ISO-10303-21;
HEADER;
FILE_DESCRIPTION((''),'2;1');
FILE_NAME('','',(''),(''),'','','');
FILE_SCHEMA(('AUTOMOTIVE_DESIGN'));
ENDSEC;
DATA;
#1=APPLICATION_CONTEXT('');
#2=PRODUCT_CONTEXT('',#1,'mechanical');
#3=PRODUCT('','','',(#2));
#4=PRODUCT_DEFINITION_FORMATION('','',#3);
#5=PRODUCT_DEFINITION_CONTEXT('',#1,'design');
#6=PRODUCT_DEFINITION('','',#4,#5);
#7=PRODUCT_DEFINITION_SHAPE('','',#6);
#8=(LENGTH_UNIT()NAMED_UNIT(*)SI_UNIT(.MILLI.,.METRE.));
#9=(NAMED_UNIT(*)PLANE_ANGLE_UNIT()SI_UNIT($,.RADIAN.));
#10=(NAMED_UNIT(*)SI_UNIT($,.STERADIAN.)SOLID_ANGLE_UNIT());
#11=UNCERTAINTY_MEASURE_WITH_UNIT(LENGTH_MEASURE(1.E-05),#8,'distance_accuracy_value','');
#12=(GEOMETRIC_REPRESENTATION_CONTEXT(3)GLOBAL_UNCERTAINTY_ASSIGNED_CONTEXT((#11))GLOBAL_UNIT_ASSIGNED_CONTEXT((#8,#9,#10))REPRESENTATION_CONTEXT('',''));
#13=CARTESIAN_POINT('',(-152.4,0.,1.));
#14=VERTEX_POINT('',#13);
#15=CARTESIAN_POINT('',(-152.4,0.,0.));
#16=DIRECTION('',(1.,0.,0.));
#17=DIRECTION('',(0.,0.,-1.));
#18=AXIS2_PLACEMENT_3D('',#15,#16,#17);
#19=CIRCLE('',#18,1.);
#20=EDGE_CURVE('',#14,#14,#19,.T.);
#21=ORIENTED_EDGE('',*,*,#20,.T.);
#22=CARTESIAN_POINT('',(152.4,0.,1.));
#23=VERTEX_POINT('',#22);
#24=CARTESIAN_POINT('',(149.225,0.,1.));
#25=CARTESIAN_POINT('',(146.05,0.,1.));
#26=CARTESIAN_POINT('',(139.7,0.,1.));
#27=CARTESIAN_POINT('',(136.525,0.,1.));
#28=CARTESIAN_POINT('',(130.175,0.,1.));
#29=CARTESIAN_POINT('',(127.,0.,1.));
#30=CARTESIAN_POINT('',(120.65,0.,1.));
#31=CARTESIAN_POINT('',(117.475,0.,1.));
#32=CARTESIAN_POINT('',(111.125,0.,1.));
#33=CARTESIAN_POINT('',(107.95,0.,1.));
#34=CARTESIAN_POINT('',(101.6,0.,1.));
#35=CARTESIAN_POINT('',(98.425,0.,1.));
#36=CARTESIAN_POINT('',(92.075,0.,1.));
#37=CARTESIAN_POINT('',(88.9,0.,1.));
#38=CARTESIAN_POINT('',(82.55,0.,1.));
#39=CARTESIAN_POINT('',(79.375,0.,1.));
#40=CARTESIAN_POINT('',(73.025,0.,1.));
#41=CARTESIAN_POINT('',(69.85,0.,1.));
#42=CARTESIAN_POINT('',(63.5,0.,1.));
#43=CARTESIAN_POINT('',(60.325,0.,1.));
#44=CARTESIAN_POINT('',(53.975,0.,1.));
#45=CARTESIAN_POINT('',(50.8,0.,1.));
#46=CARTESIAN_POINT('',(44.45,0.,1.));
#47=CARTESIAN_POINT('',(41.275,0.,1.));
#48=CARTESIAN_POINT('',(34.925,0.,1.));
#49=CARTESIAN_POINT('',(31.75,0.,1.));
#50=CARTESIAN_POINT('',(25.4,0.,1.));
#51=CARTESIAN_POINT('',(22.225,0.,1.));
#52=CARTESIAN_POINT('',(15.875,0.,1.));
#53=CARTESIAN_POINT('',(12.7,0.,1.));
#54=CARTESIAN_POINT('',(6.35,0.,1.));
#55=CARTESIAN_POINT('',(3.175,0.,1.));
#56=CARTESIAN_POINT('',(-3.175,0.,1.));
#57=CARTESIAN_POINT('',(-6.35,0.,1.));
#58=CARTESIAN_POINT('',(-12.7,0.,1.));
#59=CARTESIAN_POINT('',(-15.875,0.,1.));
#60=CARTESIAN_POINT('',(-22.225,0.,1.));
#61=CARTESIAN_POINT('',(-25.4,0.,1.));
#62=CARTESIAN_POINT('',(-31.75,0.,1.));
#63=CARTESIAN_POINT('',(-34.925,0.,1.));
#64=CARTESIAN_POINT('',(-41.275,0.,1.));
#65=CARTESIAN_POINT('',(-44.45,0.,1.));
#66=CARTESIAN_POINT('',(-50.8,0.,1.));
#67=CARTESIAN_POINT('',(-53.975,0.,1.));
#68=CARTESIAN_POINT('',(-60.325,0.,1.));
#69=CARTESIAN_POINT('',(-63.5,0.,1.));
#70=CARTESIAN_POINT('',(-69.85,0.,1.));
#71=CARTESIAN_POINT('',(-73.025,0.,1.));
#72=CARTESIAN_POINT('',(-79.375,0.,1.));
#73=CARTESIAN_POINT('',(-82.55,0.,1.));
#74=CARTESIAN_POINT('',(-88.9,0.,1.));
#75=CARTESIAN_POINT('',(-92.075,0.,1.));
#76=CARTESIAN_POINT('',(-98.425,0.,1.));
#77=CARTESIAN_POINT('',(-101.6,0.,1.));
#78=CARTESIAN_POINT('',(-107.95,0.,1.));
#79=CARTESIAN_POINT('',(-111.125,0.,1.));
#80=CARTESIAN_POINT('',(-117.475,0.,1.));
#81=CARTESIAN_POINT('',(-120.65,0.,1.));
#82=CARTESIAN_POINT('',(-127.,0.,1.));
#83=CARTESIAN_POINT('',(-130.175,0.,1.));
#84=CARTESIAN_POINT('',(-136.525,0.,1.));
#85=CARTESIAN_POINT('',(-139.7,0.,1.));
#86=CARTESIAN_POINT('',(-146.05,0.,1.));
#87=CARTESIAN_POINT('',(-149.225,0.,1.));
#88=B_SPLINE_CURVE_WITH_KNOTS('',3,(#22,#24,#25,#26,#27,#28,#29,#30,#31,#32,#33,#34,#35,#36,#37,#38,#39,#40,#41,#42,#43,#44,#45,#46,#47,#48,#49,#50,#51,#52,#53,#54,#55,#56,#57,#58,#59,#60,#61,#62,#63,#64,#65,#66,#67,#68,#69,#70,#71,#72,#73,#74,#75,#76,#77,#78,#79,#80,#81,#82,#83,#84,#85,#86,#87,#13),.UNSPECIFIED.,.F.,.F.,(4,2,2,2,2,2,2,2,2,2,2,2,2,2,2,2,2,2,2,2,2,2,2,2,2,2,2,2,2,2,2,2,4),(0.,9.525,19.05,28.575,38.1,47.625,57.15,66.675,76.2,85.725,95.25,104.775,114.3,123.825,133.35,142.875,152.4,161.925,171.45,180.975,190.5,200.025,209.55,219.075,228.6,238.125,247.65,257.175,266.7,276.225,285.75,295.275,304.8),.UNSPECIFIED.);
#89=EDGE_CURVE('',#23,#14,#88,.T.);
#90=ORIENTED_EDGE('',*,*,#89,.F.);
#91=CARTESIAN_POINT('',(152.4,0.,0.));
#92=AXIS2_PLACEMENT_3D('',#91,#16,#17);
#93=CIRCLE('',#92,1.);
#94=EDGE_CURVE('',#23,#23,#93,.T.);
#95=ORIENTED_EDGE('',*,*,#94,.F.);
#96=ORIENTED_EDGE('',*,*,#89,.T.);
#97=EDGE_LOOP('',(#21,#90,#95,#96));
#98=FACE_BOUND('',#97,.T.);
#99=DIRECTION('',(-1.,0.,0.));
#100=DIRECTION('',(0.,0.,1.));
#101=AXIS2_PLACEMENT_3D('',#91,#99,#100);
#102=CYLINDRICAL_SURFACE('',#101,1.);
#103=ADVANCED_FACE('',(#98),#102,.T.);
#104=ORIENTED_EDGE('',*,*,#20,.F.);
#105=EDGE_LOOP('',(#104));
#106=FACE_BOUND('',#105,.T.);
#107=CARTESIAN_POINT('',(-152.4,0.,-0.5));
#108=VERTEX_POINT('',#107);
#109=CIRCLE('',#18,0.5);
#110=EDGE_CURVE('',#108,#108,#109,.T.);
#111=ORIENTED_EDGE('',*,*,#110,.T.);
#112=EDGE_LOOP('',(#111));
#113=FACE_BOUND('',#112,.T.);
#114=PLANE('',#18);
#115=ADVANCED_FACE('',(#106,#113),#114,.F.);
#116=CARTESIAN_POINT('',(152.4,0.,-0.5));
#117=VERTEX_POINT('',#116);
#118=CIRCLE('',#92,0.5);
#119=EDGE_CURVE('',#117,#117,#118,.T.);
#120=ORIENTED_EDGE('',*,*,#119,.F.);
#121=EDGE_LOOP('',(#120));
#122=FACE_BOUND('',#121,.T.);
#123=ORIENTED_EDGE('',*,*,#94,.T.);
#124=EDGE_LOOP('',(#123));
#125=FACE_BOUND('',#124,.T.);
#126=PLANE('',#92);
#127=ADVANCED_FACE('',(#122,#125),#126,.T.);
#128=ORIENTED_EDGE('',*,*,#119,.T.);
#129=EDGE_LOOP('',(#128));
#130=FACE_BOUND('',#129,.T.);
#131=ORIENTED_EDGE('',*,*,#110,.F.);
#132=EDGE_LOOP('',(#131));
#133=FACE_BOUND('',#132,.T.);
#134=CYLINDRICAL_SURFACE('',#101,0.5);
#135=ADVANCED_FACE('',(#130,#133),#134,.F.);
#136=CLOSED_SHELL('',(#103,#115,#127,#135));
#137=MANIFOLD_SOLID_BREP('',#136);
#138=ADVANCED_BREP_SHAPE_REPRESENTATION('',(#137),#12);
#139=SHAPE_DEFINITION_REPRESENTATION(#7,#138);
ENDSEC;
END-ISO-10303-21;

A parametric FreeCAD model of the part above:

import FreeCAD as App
import Part
import Sketcher

doc = App.newDocument("Part")
body = doc.addObject("PartDesign::Body", "Body")

# Sketch on YZ plane
sketch1 = doc.addObject("Sketcher::SketchObject", "Sketch")
body.addObject(sketch1)
sketch1.AttachmentSupport = (doc.YZ_Plane, [""])
sketch1.MapMode = "FlatFace"
sketch1.addGeometry(Part.Circle(App.Vector(0, 0, 0), App.Vector(0, 0, 1), 1), False)
sketch1.addGeometry(Part.Circle(App.Vector(0, 0, 0), App.Vector(0, 0, 1), 0.5), False)
sketch1.addConstraint(Sketcher.Constraint("Coincident", 0, 3, -1, 1))
sketch1.addConstraint(Sketcher.Constraint("Coincident", 1, 3, -1, 1))
sketch1.addConstraint(Sketcher.Constraint("Diameter", 0, 2.0))
sketch1.addConstraint(Sketcher.Constraint("Diameter", 1, 1.0))
pad1 = doc.addObject("PartDesign::Pad", "Pad")
body.addObject(pad1)
pad1.Profile = sketch1
pad1.Length = 304.8
pad1.Midplane = True

doc.recompute()
